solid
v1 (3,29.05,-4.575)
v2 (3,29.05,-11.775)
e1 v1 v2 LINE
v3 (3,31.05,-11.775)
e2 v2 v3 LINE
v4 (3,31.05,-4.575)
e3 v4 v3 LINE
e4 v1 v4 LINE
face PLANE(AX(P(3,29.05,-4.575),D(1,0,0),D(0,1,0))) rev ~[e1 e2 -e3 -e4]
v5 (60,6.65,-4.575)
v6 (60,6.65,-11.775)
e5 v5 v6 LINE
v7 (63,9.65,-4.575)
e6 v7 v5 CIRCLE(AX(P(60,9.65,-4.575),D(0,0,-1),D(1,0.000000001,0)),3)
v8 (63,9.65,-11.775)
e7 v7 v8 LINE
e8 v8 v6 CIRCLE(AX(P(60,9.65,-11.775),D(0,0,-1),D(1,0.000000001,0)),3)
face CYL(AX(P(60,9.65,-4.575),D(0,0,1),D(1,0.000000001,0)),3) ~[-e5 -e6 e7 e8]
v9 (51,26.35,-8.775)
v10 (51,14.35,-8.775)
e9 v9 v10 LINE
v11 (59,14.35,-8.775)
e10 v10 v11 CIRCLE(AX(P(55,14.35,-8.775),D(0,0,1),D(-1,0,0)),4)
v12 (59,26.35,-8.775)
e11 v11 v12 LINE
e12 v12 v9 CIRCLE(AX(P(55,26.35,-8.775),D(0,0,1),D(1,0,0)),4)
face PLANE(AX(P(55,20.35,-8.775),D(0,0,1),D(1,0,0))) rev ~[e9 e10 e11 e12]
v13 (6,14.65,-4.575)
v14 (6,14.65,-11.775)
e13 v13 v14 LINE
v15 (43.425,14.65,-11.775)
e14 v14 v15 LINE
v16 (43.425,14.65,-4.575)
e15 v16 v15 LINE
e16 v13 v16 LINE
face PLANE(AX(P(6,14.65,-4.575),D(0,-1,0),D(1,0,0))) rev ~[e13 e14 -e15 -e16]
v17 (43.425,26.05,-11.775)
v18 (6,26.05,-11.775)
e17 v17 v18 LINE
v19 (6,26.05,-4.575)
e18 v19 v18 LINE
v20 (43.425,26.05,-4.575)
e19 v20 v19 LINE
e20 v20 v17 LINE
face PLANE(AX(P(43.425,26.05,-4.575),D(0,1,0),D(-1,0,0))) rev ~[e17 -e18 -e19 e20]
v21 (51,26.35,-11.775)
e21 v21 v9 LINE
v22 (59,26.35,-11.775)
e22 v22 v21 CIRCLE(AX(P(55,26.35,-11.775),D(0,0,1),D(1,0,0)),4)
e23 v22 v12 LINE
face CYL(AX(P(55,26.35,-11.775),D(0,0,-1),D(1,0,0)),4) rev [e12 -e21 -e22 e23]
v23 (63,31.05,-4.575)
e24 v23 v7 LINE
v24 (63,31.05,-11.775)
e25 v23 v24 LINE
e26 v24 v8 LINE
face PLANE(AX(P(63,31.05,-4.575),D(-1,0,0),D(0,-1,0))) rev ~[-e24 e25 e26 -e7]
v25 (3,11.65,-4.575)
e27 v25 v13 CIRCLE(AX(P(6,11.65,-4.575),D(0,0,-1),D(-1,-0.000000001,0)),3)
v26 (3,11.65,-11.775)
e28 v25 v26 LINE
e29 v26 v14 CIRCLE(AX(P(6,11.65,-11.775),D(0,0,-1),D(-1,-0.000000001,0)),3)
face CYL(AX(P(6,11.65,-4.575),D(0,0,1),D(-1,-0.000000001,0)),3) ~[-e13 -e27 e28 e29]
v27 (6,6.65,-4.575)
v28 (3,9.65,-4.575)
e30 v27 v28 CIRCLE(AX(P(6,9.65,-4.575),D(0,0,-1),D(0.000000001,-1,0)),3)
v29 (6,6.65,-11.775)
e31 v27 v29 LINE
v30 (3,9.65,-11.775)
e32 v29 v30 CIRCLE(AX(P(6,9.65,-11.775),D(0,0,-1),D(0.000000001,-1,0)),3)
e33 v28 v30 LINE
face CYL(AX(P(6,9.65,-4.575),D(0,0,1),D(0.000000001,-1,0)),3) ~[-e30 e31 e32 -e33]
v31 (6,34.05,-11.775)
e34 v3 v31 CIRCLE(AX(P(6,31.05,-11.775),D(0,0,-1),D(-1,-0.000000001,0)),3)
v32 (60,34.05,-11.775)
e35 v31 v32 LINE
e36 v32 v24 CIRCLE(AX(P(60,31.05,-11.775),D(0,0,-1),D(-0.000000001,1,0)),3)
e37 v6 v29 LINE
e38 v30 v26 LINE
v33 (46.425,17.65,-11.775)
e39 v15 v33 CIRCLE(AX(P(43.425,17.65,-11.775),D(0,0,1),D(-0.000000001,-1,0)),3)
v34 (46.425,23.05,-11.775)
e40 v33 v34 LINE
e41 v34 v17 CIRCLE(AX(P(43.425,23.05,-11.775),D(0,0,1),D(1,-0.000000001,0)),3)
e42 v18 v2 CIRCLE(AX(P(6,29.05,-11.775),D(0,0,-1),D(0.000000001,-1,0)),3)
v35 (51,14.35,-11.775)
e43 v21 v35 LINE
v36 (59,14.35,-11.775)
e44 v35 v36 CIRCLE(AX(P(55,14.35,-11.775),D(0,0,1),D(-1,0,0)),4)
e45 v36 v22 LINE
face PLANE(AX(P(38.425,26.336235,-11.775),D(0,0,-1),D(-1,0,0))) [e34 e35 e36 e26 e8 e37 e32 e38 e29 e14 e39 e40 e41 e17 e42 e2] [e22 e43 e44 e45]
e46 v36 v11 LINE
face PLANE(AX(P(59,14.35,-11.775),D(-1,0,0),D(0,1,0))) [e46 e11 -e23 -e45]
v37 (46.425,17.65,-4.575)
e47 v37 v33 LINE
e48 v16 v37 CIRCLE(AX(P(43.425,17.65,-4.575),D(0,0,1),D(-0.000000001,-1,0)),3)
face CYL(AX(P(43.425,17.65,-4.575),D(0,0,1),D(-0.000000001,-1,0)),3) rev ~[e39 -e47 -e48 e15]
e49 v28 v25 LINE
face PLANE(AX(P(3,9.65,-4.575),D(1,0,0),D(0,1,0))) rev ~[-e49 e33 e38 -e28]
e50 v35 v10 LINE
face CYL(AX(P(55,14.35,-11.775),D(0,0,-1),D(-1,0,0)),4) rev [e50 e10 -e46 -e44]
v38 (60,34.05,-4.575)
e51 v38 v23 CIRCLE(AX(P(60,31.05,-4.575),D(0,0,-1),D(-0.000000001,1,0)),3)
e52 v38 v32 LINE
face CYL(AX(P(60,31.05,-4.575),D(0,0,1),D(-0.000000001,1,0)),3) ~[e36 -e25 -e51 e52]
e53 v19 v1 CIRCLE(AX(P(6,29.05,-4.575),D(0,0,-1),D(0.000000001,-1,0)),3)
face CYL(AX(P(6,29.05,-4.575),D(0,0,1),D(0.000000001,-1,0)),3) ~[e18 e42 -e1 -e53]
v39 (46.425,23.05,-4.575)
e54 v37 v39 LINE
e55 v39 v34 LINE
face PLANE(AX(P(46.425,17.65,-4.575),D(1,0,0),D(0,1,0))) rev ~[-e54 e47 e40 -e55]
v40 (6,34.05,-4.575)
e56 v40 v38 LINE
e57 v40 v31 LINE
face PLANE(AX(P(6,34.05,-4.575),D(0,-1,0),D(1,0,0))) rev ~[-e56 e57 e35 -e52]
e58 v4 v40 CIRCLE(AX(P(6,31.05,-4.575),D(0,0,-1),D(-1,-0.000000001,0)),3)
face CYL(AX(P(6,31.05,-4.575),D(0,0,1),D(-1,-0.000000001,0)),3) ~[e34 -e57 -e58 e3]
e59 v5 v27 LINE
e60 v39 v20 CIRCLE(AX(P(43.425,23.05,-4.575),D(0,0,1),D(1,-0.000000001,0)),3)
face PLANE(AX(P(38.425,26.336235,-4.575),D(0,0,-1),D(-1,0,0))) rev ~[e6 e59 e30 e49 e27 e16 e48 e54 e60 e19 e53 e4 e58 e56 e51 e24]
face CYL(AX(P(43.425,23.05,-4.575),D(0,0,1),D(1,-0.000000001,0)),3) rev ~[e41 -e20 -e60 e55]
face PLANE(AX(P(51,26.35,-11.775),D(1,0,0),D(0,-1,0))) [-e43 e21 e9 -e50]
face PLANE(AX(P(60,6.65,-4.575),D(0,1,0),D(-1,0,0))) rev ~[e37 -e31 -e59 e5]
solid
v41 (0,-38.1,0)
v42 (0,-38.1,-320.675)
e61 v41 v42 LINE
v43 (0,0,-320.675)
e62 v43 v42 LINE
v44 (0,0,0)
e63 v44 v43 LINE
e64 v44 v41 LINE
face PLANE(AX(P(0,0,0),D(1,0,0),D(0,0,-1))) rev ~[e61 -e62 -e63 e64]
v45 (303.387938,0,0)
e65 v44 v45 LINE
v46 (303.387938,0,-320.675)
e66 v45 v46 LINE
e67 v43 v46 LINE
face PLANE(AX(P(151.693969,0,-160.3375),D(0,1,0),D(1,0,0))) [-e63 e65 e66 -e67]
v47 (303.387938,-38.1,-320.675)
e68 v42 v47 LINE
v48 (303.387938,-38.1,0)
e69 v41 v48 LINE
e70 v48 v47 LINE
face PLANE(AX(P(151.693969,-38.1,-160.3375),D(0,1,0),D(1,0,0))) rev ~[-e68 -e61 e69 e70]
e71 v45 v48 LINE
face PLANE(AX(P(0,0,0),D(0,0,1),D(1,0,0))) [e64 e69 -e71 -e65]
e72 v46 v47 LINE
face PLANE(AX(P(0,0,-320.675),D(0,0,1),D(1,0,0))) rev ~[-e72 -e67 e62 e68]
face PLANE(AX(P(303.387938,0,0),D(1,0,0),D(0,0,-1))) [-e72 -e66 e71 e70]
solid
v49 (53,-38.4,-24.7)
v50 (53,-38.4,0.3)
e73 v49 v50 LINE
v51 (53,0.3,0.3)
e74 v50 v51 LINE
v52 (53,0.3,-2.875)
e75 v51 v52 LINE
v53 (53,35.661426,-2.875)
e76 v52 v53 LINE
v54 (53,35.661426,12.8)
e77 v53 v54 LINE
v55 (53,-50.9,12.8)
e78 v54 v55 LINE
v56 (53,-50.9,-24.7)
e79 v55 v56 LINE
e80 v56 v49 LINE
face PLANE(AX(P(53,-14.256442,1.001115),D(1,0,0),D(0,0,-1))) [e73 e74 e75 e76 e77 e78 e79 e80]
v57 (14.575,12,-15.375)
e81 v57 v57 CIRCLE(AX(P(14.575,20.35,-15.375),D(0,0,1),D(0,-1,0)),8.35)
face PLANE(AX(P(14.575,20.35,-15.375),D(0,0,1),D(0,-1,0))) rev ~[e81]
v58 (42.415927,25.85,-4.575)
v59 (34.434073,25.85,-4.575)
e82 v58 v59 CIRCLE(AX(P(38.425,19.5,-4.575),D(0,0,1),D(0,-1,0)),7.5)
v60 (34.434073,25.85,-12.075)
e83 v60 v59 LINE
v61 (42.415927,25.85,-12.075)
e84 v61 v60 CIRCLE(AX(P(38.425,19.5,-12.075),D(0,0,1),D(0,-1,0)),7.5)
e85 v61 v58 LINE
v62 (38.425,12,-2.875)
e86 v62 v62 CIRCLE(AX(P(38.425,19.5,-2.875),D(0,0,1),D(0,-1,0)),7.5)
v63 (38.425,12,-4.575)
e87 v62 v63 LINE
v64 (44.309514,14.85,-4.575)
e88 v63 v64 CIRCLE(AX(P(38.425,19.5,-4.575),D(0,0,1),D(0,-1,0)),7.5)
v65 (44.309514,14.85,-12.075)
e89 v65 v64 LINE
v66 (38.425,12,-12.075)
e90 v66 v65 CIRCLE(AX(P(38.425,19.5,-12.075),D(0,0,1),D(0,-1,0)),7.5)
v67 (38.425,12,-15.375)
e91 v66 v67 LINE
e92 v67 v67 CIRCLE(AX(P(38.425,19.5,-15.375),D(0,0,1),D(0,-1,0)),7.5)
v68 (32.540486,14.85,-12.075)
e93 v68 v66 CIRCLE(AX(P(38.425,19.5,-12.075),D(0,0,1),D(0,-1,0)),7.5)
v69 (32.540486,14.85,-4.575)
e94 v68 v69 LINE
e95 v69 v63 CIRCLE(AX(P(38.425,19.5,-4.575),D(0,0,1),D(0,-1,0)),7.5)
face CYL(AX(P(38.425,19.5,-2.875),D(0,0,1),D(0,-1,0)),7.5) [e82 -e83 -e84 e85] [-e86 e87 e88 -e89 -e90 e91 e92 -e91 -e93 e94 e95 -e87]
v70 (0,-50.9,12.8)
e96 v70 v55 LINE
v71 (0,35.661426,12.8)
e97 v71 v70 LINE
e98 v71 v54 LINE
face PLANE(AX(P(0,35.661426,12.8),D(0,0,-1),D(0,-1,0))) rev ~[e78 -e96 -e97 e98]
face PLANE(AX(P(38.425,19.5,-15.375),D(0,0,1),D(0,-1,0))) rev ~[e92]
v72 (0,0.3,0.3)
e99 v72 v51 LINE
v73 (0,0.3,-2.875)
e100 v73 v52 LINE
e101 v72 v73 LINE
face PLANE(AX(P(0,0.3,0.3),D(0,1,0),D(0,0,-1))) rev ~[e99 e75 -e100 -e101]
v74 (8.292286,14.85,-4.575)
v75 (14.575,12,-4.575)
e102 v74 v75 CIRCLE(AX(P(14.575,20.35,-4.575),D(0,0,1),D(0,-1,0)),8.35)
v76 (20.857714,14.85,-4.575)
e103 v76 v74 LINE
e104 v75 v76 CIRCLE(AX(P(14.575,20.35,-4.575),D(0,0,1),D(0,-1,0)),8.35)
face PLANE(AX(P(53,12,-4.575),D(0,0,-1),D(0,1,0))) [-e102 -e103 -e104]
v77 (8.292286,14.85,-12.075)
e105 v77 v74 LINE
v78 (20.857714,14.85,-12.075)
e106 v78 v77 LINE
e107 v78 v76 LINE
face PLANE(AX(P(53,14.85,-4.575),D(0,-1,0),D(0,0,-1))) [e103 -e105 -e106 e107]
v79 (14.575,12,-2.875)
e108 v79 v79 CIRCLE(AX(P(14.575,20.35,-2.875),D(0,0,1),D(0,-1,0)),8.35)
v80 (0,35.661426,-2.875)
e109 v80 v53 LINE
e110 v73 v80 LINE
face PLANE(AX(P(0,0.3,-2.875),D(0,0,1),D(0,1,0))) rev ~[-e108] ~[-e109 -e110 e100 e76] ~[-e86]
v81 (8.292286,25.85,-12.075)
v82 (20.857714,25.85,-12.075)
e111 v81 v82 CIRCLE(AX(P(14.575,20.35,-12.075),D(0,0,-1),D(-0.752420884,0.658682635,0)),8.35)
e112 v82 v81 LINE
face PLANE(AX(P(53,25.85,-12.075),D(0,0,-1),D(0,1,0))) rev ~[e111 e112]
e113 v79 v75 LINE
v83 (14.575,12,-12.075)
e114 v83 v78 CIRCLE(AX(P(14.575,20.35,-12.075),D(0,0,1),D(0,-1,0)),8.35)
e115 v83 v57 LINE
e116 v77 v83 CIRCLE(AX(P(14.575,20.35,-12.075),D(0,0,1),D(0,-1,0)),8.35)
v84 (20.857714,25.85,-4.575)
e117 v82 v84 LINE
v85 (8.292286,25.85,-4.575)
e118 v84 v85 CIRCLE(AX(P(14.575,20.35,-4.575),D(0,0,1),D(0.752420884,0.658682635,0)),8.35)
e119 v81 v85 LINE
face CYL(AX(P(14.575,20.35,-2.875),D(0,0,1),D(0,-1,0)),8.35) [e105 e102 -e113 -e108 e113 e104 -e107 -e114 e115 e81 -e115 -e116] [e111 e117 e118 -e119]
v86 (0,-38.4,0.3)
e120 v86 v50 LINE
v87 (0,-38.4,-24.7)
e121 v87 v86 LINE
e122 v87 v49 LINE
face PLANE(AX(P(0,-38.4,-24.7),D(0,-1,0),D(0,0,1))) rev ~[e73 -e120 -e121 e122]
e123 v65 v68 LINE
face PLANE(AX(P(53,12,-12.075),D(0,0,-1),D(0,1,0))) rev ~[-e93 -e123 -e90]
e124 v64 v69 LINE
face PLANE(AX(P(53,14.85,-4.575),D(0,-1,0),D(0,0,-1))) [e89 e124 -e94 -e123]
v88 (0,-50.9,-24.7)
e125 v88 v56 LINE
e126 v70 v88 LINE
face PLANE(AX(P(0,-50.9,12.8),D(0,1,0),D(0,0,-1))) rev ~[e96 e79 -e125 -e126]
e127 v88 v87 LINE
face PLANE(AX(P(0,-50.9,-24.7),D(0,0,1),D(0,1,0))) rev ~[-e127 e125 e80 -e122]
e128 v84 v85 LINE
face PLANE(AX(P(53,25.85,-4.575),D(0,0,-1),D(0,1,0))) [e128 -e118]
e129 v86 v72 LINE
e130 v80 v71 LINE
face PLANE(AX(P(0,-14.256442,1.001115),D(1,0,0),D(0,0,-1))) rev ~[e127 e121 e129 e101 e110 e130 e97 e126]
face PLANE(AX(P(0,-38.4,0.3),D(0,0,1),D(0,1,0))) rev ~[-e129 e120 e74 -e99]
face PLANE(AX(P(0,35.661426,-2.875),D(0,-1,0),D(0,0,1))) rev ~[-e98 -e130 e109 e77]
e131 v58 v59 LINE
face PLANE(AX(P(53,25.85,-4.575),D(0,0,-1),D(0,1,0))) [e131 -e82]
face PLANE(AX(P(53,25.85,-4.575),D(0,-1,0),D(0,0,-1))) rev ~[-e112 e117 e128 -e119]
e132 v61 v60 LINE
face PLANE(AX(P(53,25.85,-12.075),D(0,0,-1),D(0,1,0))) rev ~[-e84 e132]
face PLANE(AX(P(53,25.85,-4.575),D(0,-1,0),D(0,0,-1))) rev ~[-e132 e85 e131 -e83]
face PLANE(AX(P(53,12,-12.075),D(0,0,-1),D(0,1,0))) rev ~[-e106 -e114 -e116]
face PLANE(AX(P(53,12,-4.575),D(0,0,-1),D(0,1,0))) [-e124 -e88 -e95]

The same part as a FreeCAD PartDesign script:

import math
import FreeCAD as App
import Part
import Sketcher


def add_polygon(sketch, points):
    """Adds a closed chain of lines whose ends are joined by coincident constraints."""
    first, n = sketch.GeometryCount, len(points)
    for a, b in zip(points, points[1:] + points[:1]):
        sketch.addGeometry(Part.LineSegment(App.Vector(*a, 0), App.Vector(*b, 0)), False)
    for i in range(n):
        sketch.addConstraint(Sketcher.Constraint("Coincident", first + i, 2, first + (i + 1) % n, 1))

doc = App.newDocument("Part")
body = doc.addObject("PartDesign::Body", "Body")

sketch1 = body.newObject("Sketcher::SketchObject", "Sketch")
sketch1.AttachmentSupport = (doc.getObject("XZ_Plane"), [""])
sketch1.MapMode = "FlatFace"
add_polygon(sketch1, [(0, -321), (0, 0), (303, 0), (303, -321)])
sketch1.addConstraint(Sketcher.Constraint("Vertical", 0))
sketch1.addConstraint(Sketcher.Constraint("Horizontal", 1))
sketch1.addConstraint(Sketcher.Constraint("Vertical", 2))
sketch1.addConstraint(Sketcher.Constraint("Horizontal", 3))
sketch1.addConstraint(Sketcher.Constraint("Coincident", 0, 2, -1, 1))
sketch1.addConstraint(Sketcher.Constraint("DistanceY", 0, 1, 0, 2, 320.675))
sketch1.addConstraint(Sketcher.Constraint("DistanceX", 1, 1, 1, 2, 303.387938))
pad1 = body.newObject("PartDesign::Pad", "Pad")
pad1.Profile = sketch1
pad1.Length = 38.1
body2 = doc.addObject("PartDesign::Body", "Body001")

sketch2 = body2.newObject("Sketcher::SketchObject", "Sketch001")
sketch2.AttachmentSupport = (doc.getObject("YZ_Plane001"), [""])
sketch2.MapMode = "FlatFace"
add_polygon(sketch2, [(-38.4, -24.7), (-38.4, 0.3), (0.3, 0.3), (0.3, -2.9), (35.7, -2.9), (35.7, 12.8), (-50.9, 12.8), (-50.9, -24.7)])
sketch2.addConstraint(Sketcher.Constraint("Vertical", 0))
sketch2.addConstraint(Sketcher.Constraint("Horizontal", 1))
sketch2.addConstraint(Sketcher.Constraint("Vertical", 2))
sketch2.addConstraint(Sketcher.Constraint("Horizontal", 3))
sketch2.addConstraint(Sketcher.Constraint("Vertical", 4))
sketch2.addConstraint(Sketcher.Constraint("Horizontal", 5))
sketch2.addConstraint(Sketcher.Constraint("Vertical", 6))
sketch2.addConstraint(Sketcher.Constraint("Horizontal", 7))
sketch2.addConstraint(Sketcher.Constraint("DistanceY", 0, 1, 0, 2, 25.0))
sketch2.addConstraint(Sketcher.Constraint("DistanceX", 1, 1, 1, 2, 38.7))
sketch2.addConstraint(Sketcher.Constraint("DistanceX", 7, 1, 7, 2, 12.5))
sketch2.addConstraint(Sketcher.Constraint("DistanceY", 6, 2, 6, 1, 37.5))
sketch2.addConstraint(Sketcher.Constraint("DistanceX", 0, 2, -1, 1, 38.4))
sketch2.addConstraint(Sketcher.Constraint("DistanceY", -1, 1, 0, 2, 0.3))
sketch2.addConstraint(Sketcher.Constraint("DistanceY", 2, 2, 2, 1, 3.175))
sketch2.addConstraint(Sketcher.Constraint("DistanceX", 3, 1, 3, 2, 35.361426))
pad2 = body2.newObject("PartDesign::Pad", "Pad001")
pad2.Profile = sketch2
pad2.Length = 53

sketch3 = body2.newObject("Sketcher::SketchObject", "Sketch002")
sketch3.AttachmentSupport = (doc.getObject("XY_Plane001"), [""])
sketch3.MapMode = "FlatFace"
sketch3.AttachmentOffset = App.Placement(App.Vector(0, 0, -2.875), App.Rotation())
sketch3.addGeometry(Part.Circle(App.Vector(15, 20, 0), App.Vector(0, 0, 1), 8), False)
sketch3.addGeometry(Part.Circle(App.Vector(38, 20, 0), App.Vector(0, 0, 1), 8), False)
sketch3.addConstraint(Sketcher.Constraint("Diameter", 1, 15.0))
sketch3.addConstraint(Sketcher.Constraint("Diameter", 0, 16.7))
sketch3.addConstraint(Sketcher.Constraint("DistanceY", -1, 1, 1, 3, 19.5))
sketch3.addConstraint(Sketcher.Constraint("DistanceY", -1, 1, 0, 3, 20.35))
sketch3.addConstraint(Sketcher.Constraint("DistanceX", 0, 3, 1, 3, 23.85))
sketch3.addConstraint(Sketcher.Constraint("DistanceX", -1, 1, 0, 3, 14.575))
pad3 = body2.newObject("PartDesign::Pad", "Pad002")
pad3.Profile = sketch3
pad3.Length = 12.5
pad3.Reversed = True

sketch4 = body2.newObject("Sketcher::SketchObject", "Sketch003")
sketch4.AttachmentSupport = (doc.getObject("YZ_Plane001"), [""])
sketch4.MapMode = "FlatFace"
sketch4.AttachmentOffset = App.Placement(App.Vector(0, 0, 53), App.Rotation())
add_polygon(sketch4, [(28.7, -4.6), (25.9, -4.6), (25.9, -12.1), (28.7, -12.1)])
add_polygon(sketch4, [(14.8, -4.6), (12, -4.6), (12, -12.1), (14.8, -12.1)])
sketch4.addConstraint(Sketcher.Constraint("Horizontal", 0))
sketch4.addConstraint(Sketcher.Constraint("Vertical", 1))
sketch4.addConstraint(Sketcher.Constraint("Horizontal", 2))
sketch4.addConstraint(Sketcher.Constraint("Vertical", 3))
sketch4.addConstraint(Sketcher.Constraint("Horizontal", 4))
sketch4.addConstraint(Sketcher.Constraint("Vertical", 5))
sketch4.addConstraint(Sketcher.Constraint("Horizontal", 6))
sketch4.addConstraint(Sketcher.Constraint("Vertical", 7))
sketch4.addConstraint(Sketcher.Constraint("Horizontal", 3, 2, 4, 2))
sketch4.addConstraint(Sketcher.Constraint("Horizontal", 2, 2, 5, 2))
sketch4.addConstraint(Sketcher.Constraint("Equal", 2, 4))
sketch4.addConstraint(Sketcher.Constraint("DistanceY", 1, 2, 1, 1, 7.5))
sketch4.addConstraint(Sketcher.Constraint("DistanceX", -1, 1, 4, 2, 12.0))
sketch4.addConstraint(Sketcher.Constraint("DistanceX", 6, 2, 1, 2, 11.0))
sketch4.addConstraint(Sketcher.Constraint("DistanceX", 0, 2, 0, 1, 2.85))
sketch4.addConstraint(Sketcher.Constraint("DistanceY", 0, 2, -1, 1, 4.575))
pocket1 = body2.newObject("PartDesign::Pocket", "Pocket")
pocket1.Profile = sketch4
pocket1.Type = "ThroughAll"
body3 = doc.addObject("PartDesign::Body", "Body002")

sketch5 = body3.newObject("Sketcher::SketchObject", "Sketch004")
sketch5.AttachmentSupport = (doc.getObject("XY_Plane002"), [""])
sketch5.MapMode = "FlatFace"
sketch5.AttachmentOffset = App.Placement(App.Vector(0, 0, -4.575), App.Rotation())
sketch5.addGeometry(Part.ArcOfCircle(Part.Circle(App.Vector(6, 29, 0), App.Vector(0, 0, 1), 3), math.radians(180), math.radians(270)), False)
sketch5.addGeometry(Part.LineSegment(App.Vector(3, 29.1, 0), App.Vector(3, 31.1, 0)), False)
sketch5.addGeometry(Part.ArcOfCircle(Part.Circle(App.Vector(6, 31.1, 0), App.Vector(0, 0, 1), 3), math.radians(90), math.radians(180)), False)
sketch5.addGeometry(Part.LineSegment(App.Vector(6, 34, 0), App.Vector(60, 34, 0)), False)
sketch5.addGeometry(Part.ArcOfCircle(Part.Circle(App.Vector(60, 31.1, 0), App.Vector(0, 0, 1), 3), math.radians(0), math.radians(90)), False)
sketch5.addGeometry(Part.LineSegment(App.Vector(63, 31.1, 0), App.Vector(63, 9.7, 0)), False)
sketch5.addGeometry(Part.ArcOfCircle(Part.Circle(App.Vector(60, 9.6, 0), App.Vector(0, 0, 1), 3), math.radians(-90), math.radians(0)), False)
sketch5.addGeometry(Part.LineSegment(App.Vector(60, 6.7, 0), App.Vector(6, 6.7, 0)), False)
sketch5.addGeometry(Part.ArcOfCircle(Part.Circle(App.Vector(6, 9.6, 0), App.Vector(0, 0, 1), 3), math.radians(180), math.radians(270)), False)
sketch5.addGeometry(Part.LineSegment(App.Vector(3, 9.7, 0), App.Vector(3, 11.7, 0)), False)
sketch5.addGeometry(Part.ArcOfCircle(Part.Circle(App.Vector(6, 11.7, 0), App.Vector(0, 0, 1), 3), math.radians(90), math.radians(180)), False)
sketch5.addGeometry(Part.LineSegment(App.Vector(6, 14.7, 0), App.Vector(43.4, 14.7, 0)), False)
sketch5.addGeometry(Part.ArcOfCircle(Part.Circle(App.Vector(43.4, 17.6, 0), App.Vector(0, 0, 1), 3), math.radians(-90), math.radians(0)), False)
sketch5.addGeometry(Part.LineSegment(App.Vector(46.4, 17.6, 0), App.Vector(46.4, 23.1, 0)), False)
sketch5.addGeometry(Part.ArcOfCircle(Part.Circle(App.Vector(43.4, 23.1, 0), App.Vector(0, 0, 1), 3), math.radians(0), math.radians(90)), False)
sketch5.addGeometry(Part.LineSegment(App.Vector(43.4, 26.1, 0), App.Vector(6, 26.1, 0)), False)
sketch5.addConstraint(Sketcher.Constraint("Tangent", 0, 1, 1, 1))
sketch5.addConstraint(Sketcher.Constraint("Tangent", 1, 2, 2, 2))
sketch5.addConstraint(Sketcher.Constraint("Tangent", 2, 1, 3, 1))
sketch5.addConstraint(Sketcher.Constraint("Tangent", 3, 2, 4, 2))
sketch5.addConstraint(Sketcher.Constraint("Tangent", 4, 1, 5, 1))
sketch5.addConstraint(Sketcher.Constraint("Tangent", 5, 2, 6, 2))
sketch5.addConstraint(Sketcher.Constraint("Tangent", 6, 1, 7, 1))
sketch5.addConstraint(Sketcher.Constraint("Tangent", 7, 2, 8, 2))
sketch5.addConstraint(Sketcher.Constraint("Tangent", 8, 1, 9, 1))
sketch5.addConstraint(Sketcher.Constraint("Tangent", 9, 2, 10, 2))
sketch5.addConstraint(Sketcher.Constraint("Tangent", 10, 1, 11, 1))
sketch5.addConstraint(Sketcher.Constraint("Tangent", 11, 2, 12, 1))
sketch5.addConstraint(Sketcher.Constraint("Tangent", 12, 2, 13, 1))
sketch5.addConstraint(Sketcher.Constraint("Tangent", 13, 2, 14, 1))
sketch5.addConstraint(Sketcher.Constraint("Tangent", 14, 2, 15, 1))
sketch5.addConstraint(Sketcher.Constraint("Tangent", 15, 2, 0, 2))
sketch5.addConstraint(Sketcher.Constraint("Vertical", 1))
sketch5.addConstraint(Sketcher.Constraint("Horizontal", 3))
sketch5.addConstraint(Sketcher.Constraint("Vertical", 5))
sketch5.addConstraint(Sketcher.Constraint("Horizontal", 7))
sketch5.addConstraint(Sketcher.Constraint("Vertical", 9))
sketch5.addConstraint(Sketcher.Constraint("Horizontal", 11))
sketch5.addConstraint(Sketcher.Constraint("Vertical", 13))
sketch5.addConstraint(Sketcher.Constraint("Horizontal", 15))
sketch5.addConstraint(Sketcher.Constraint("Equal", 0, 2))
sketch5.addConstraint(Sketcher.Constraint("Equal", 2, 4))
sketch5.addConstraint(Sketcher.Constraint("Equal", 4, 6))
sketch5.addConstraint(Sketcher.Constraint("Equal", 6, 8))
sketch5.addConstraint(Sketcher.Constraint("Equal", 8, 10))
sketch5.addConstraint(Sketcher.Constraint("Equal", 10, 12))
sketch5.addConstraint(Sketcher.Constraint("Equal", 12, 14))
sketch5.addConstraint(Sketcher.Constraint("Vertical", 2, 3, 8, 3))
sketch5.addConstraint(Sketcher.Constraint("Equal", 1, 9))
sketch5.addConstraint(Sketcher.Constraint("Radius", 0, 3.0))
sketch5.addConstraint(Sketcher.Constraint("DistanceX", 3, 1, 3, 2, 54.0))
sketch5.addConstraint(Sketcher.Constraint("DistanceY", 1, 1, 1, 2, 2.0))
sketch5.addConstraint(Sketcher.Constraint("DistanceY", 5, 2, 5, 1, 21.4))
sketch5.addConstraint(Sketcher.Constraint("DistanceX", -1, 1, 0, 3, 6.0))
sketch5.addConstraint(Sketcher.Constraint("DistanceX", 11, 1, 11, 2, 37.425))
sketch5.addConstraint(Sketcher.Constraint("DistanceY", -1, 1, 0, 3, 29.05))
pad4 = body3.newObject("PartDesign::Pad", "Pad003")
pad4.Profile = sketch5
pad4.Length = 7.2
pad4.Reversed = True

sketch6 = body3.newObject("Sketcher::SketchObject", "Sketch005")
sketch6.AttachmentSupport = (doc.getObject("XY_Plane002"), [""])
sketch6.MapMode = "FlatFace"
sketch6.AttachmentOffset = App.Placement(App.Vector(0, 0, -11.775), App.Rotation())
sketch6.addGeometry(Part.LineSegment(App.Vector(51, 14.3, 0), App.Vector(51, 26.4, 0)), False)
sketch6.addGeometry(Part.ArcOfCircle(Part.Circle(App.Vector(55, 26.4, 0), App.Vector(0, 0, 1), 4), math.radians(0), math.radians(180)), False)
sketch6.addGeometry(Part.LineSegment(App.Vector(59, 26.4, 0), App.Vector(59, 14.3, 0)), False)
sketch6.addGeometry(Part.ArcOfCircle(Part.Circle(App.Vector(55, 14.3, 0), App.Vector(0, 0, 1), 4), math.radians(180), math.radians(360)), False)
sketch6.addConstraint(Sketcher.Constraint("Tangent", 0, 2, 1, 2))
sketch6.addConstraint(Sketcher.Constraint("Tangent", 1, 1, 2, 1))
sketch6.addConstraint(Sketcher.Constraint("Tangent", 2, 2, 3, 2))
sketch6.addConstraint(Sketcher.Constraint("Tangent", 3, 1, 0, 1))
sketch6.addConstraint(Sketcher.Constraint("Vertical", 0))
sketch6.addConstraint(Sketcher.Constraint("Vertical", 2))
sketch6.addConstraint(Sketcher.Constraint("Radius", 1, 4.0))
sketch6.addConstraint(Sketcher.Constraint("DistanceY", 0, 1, 0, 2, 12.0))
sketch6.addConstraint(Sketcher.Constraint("DistanceX", -1, 1, 1, 3, 55.0))
sketch6.addConstraint(Sketcher.Constraint("DistanceY", -1, 1, 1, 3, 26.35))
pocket2 = body3.newObject("PartDesign::Pocket", "Pocket001")
pocket2.Profile = sketch6
pocket2.Length = 3
pocket2.Reversed = True

doc.recompute()
